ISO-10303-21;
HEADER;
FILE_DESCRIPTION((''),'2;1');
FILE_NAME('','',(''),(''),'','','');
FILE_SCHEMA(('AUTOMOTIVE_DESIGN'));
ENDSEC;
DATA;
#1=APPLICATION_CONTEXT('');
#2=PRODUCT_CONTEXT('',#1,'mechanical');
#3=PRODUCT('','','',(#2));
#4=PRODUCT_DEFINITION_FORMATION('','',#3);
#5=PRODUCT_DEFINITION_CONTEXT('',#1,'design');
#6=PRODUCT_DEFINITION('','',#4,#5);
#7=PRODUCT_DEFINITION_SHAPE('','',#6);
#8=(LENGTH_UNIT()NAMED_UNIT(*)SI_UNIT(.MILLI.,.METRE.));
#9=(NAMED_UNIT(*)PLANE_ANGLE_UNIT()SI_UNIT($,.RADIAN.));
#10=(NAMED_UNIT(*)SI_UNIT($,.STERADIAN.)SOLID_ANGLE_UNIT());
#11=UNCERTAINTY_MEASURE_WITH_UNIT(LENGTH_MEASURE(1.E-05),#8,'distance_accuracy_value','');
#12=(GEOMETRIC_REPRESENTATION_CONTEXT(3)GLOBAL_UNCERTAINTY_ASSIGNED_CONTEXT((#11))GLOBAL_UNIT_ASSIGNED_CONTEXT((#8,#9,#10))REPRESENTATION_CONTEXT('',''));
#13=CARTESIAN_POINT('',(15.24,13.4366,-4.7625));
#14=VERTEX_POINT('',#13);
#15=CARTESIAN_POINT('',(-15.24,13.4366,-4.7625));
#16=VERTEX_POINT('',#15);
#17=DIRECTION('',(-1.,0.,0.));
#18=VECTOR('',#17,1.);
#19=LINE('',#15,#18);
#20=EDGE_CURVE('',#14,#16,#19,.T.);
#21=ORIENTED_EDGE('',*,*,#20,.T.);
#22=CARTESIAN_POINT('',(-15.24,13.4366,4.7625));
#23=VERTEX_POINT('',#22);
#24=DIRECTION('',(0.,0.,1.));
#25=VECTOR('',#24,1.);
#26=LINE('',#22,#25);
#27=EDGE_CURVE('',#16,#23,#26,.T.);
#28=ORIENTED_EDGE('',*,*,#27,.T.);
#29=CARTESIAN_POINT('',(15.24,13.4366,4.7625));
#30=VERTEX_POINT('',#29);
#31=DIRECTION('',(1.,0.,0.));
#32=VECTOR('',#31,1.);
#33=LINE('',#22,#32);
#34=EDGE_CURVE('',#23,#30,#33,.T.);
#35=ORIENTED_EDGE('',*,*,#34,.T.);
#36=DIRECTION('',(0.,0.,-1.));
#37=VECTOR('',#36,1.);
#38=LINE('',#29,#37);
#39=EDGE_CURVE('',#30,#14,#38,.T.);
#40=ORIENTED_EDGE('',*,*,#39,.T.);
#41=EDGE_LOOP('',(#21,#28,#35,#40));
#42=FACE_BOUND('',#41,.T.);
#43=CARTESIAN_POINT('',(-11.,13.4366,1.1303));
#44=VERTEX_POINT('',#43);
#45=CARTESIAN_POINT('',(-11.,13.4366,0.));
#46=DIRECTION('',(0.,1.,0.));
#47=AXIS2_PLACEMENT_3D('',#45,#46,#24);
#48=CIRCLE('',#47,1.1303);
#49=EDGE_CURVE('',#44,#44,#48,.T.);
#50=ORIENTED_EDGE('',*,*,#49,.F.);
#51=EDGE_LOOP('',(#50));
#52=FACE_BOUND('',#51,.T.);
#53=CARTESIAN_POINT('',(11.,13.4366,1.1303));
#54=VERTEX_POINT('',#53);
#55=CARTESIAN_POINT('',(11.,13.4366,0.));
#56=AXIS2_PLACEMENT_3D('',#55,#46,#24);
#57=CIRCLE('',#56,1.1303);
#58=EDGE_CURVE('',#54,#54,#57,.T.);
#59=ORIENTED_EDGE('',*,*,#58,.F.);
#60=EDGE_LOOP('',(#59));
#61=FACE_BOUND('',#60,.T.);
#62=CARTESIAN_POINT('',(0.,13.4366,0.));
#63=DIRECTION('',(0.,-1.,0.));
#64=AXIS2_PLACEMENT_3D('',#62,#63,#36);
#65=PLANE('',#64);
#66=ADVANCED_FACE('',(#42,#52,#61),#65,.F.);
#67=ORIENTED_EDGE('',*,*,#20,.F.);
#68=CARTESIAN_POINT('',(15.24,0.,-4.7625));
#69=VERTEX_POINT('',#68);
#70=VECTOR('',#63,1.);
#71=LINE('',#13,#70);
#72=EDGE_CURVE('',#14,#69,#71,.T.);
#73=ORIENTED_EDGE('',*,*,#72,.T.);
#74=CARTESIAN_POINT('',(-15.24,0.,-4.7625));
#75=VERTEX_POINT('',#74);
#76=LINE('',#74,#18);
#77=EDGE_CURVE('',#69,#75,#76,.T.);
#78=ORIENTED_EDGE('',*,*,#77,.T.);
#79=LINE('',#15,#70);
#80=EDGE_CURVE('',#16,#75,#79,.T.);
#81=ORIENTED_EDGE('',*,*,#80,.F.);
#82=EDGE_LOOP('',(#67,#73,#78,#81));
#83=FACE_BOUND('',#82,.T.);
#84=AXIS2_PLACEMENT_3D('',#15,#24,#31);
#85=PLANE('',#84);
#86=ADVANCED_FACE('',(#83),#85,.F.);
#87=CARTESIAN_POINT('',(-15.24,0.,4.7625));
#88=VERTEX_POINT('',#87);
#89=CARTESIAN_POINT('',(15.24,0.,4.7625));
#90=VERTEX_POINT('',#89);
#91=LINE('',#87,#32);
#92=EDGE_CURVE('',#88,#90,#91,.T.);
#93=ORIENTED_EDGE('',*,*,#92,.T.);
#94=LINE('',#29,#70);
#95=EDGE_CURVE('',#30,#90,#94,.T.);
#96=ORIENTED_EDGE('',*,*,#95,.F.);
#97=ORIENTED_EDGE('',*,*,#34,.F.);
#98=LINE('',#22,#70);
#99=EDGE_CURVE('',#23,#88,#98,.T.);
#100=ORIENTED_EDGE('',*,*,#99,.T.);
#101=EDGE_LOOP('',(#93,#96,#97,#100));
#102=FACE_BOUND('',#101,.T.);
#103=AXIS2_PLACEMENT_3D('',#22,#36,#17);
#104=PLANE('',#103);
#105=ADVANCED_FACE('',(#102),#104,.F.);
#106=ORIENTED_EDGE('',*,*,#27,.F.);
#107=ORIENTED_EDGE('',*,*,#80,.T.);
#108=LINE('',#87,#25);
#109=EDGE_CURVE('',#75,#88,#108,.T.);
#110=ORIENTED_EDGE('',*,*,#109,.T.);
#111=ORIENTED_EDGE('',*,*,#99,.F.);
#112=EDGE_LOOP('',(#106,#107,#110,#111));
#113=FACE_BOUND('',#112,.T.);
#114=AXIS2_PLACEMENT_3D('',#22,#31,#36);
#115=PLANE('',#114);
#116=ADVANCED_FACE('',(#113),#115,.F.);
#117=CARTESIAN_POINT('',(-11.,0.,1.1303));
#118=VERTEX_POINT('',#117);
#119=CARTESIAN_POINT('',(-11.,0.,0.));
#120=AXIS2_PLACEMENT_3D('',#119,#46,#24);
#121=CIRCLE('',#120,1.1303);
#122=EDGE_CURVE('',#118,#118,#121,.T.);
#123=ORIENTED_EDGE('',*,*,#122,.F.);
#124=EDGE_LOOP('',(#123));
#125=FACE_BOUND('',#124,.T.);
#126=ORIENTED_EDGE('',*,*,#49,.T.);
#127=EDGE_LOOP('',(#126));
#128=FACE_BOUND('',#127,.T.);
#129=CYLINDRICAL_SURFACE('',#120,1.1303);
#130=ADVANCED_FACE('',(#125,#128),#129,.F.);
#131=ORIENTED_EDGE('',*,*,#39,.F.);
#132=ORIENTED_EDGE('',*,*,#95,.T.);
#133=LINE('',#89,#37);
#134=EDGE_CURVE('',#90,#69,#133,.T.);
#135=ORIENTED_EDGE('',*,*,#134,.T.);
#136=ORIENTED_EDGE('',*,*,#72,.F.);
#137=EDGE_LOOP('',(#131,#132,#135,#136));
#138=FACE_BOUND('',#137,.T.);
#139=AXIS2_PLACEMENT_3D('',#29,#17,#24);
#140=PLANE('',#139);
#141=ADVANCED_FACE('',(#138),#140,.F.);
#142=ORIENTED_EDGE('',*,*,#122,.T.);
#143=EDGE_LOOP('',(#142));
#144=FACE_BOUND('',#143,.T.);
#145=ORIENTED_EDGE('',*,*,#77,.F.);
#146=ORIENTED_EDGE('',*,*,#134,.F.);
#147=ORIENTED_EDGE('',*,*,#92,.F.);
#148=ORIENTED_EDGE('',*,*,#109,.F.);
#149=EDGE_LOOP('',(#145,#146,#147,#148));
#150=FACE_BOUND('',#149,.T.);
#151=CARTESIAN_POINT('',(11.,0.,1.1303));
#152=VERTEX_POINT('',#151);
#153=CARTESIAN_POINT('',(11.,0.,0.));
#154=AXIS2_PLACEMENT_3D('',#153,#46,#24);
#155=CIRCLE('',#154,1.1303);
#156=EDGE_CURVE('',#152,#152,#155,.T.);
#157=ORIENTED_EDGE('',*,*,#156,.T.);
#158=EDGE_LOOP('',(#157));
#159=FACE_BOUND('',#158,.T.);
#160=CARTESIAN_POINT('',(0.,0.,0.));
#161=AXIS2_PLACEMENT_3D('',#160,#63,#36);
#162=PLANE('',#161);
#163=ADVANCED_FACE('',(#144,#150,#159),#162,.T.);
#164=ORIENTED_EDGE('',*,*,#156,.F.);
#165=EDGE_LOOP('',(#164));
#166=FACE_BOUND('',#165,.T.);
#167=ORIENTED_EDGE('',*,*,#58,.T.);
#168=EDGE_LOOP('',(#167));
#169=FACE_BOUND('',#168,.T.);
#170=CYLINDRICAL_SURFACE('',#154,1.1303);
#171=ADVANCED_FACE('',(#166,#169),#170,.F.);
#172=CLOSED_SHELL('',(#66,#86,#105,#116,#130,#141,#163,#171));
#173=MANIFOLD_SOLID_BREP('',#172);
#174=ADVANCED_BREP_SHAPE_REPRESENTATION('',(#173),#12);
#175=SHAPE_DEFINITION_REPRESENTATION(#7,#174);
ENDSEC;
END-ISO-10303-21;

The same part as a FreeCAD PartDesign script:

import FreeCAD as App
import Part
import Sketcher
Q = App.Units.Quantity

doc = App.newDocument("Part")
body = doc.addObject("PartDesign::Body", "Body")

sketch1 = doc.addObject("Sketcher::SketchObject", "Sketch")
body.addObject(sketch1)
sketch1.AttachmentSupport = (doc.XZ_Plane, [""])
sketch1.MapMode = "FlatFace"
sketch1.addGeometry([
    Part.LineSegment(App.Vector(-15, -5, 0), App.Vector(-15, 5, 0)),
    Part.LineSegment(App.Vector(-15, 5, 0), App.Vector(15, 5, 0)),
    Part.LineSegment(App.Vector(15, 5, 0), App.Vector(15, -5, 0)),
    Part.LineSegment(App.Vector(15, -5, 0), App.Vector(-15, -5, 0)),
], False)
sketch1.addConstraint([
    Sketcher.Constraint("Coincident", 0, 2, 1, 1),
    Sketcher.Constraint("Coincident", 1, 2, 2, 1),
    Sketcher.Constraint("Coincident", 2, 2, 3, 1),
    Sketcher.Constraint("Coincident", 3, 2, 0, 1),
    Sketcher.Constraint("Vertical", 0),
    Sketcher.Constraint("Horizontal", 1),
    Sketcher.Constraint("Vertical", 2),
    Sketcher.Constraint("Horizontal", 3),
    Sketcher.Constraint("Symmetric", 0, 2, 2, 2, -1, 1),
    Sketcher.Constraint("DistanceX", 1, 1, 1, 2, Q("1.2 in")),
    Sketcher.Constraint("DistanceY", 0, 1, 0, 2, Q("0.375 in")),
])
pad1 = doc.addObject("PartDesign::Pad", "Pad")
body.addObject(pad1)
pad1.Profile = sketch1
pad1.Length = Q("0.529 in")
pad1.Reversed = True

sketch2 = doc.addObject("Sketcher::SketchObject", "Sketch001")
body.addObject(sketch2)
sketch2.AttachmentSupport = (doc.XZ_Plane, [""])
sketch2.MapMode = "FlatFace"
sketch2.AttachmentOffset = App.Placement(App.Vector(0, 0, -0.529 * 25.4), App.Rotation())
sketch2.addGeometry([
    Part.Circle(App.Vector(-11, 0, 0), App.Vector(0, 0, 1), 1.1),
    Part.Circle(App.Vector(11, 0, 0), App.Vector(0, 0, 1), 1.1),
], False)
sketch2.addConstraint([
    Sketcher.Constraint("Equal", 0, 1),
    Sketcher.Constraint("Symmetric", 0, 3, 1, 3, -1, 1),
    Sketcher.Constraint("PointOnObject", 0, 3, -1),
    Sketcher.Constraint("Diameter", 0, Q("0.089 in")),
    Sketcher.Constraint("DistanceX", 0, 3, -1, 1, Q("11 mm")),
])
pocket1 = doc.addObject("PartDesign::Pocket", "Pocket")
body.addObject(pocket1)
pocket1.Profile = sketch2
pocket1.Type = "ThroughAll"
pocket1.Reversed = True

doc.recompute()
